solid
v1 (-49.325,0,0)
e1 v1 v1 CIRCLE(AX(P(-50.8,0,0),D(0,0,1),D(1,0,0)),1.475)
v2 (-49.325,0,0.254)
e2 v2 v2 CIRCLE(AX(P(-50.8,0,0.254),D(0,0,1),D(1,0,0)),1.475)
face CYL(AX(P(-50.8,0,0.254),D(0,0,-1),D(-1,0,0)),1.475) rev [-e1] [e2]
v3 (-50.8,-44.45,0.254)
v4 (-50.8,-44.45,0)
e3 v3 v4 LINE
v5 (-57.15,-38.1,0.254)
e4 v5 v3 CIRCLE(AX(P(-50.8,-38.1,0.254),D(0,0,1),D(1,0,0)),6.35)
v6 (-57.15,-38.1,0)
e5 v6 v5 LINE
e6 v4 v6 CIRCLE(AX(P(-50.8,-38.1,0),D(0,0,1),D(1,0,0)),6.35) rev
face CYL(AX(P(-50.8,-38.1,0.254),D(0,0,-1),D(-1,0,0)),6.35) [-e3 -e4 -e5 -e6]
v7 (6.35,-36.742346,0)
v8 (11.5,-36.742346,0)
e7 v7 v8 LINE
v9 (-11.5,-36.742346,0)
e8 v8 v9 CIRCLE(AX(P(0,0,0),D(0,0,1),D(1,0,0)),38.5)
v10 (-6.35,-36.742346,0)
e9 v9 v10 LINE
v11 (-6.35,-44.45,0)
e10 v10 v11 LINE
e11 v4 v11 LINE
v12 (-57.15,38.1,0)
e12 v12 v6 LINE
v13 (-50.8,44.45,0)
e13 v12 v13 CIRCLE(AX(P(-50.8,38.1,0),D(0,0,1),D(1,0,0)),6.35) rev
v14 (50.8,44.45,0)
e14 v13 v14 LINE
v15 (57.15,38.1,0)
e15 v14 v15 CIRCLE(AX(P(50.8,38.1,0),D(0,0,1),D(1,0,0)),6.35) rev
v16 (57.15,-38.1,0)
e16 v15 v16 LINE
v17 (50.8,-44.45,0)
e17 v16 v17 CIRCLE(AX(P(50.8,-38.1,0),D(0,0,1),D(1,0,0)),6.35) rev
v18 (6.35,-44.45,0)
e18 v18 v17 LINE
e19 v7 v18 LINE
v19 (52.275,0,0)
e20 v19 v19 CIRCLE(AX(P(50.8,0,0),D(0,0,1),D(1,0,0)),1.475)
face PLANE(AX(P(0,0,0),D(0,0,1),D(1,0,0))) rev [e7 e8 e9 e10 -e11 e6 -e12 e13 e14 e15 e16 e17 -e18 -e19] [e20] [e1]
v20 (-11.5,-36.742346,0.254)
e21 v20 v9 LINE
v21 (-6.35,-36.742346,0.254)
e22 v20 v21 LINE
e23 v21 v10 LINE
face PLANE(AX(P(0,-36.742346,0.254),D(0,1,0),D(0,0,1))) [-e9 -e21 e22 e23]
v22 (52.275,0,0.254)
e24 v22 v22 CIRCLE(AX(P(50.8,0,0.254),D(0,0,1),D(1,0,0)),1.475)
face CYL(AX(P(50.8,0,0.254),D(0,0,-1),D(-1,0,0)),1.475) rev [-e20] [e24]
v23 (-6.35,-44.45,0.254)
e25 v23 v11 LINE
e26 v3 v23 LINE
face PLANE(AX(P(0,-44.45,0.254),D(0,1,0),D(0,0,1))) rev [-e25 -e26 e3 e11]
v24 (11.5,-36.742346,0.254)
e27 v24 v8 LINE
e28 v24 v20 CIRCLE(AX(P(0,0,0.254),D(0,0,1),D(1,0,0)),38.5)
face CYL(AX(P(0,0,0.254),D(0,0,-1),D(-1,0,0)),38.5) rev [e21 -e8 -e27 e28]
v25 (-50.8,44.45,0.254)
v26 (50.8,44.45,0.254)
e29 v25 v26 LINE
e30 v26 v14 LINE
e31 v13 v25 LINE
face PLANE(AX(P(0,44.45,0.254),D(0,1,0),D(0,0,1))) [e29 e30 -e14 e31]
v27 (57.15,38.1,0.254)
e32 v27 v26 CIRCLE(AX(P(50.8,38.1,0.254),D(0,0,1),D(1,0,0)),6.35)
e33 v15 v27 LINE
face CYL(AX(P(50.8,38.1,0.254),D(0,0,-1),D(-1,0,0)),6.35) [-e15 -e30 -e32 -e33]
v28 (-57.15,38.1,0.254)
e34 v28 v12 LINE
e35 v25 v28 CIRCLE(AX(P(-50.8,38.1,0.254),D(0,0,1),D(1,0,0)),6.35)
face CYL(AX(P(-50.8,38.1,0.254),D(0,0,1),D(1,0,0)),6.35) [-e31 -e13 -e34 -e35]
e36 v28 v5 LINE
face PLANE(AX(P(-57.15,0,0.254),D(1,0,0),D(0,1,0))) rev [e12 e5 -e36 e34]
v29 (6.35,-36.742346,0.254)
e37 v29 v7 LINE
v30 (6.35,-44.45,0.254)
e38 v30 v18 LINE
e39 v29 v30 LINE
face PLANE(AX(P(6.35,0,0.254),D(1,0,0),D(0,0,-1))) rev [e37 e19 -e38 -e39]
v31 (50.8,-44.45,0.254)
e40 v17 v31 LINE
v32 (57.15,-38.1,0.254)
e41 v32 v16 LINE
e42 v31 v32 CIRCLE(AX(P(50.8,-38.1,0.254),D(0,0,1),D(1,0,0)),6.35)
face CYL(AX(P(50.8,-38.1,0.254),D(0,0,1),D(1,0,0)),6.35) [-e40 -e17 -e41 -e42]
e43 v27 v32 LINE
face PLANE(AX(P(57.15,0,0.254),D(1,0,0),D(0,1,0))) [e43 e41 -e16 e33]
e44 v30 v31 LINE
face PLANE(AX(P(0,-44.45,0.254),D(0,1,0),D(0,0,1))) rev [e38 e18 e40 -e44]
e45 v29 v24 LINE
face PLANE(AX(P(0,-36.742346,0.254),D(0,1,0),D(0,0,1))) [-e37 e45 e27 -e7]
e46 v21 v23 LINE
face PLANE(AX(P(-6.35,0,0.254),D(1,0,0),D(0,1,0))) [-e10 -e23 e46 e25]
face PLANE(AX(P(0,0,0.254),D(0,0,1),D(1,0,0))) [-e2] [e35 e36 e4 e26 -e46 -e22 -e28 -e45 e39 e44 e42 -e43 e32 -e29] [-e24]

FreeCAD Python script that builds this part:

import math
import FreeCAD as App
import Part
import Sketcher
Q = App.Units.Quantity


def edges_at(feature, points):
    """Names of the edges that pass closest to the given points."""
    edges = feature.Shape.Edges
    near = lambda p: min(range(len(edges)), key=lambda i: edges[i].distToShape(Part.Vertex(*p))[0])
    return sorted({f"Edge{near(p) + 1}" for p in points})

doc = App.newDocument("Part")
body = doc.addObject("PartDesign::Body", "Body")

# Sketch on XY plane
sketch1 = body.newObject("Sketcher::SketchObject", "Sketch")
sketch1.AttachmentSupport = (doc.getObject("XY_Plane"), [""])
sketch1.MapMode = "FlatFace"
sketch1.addGeometry(Part.LineSegment(App.Vector(-6.3, -44.5, 0), App.Vector(-6.3, -36.7, 0)), False)
sketch1.addGeometry(Part.LineSegment(App.Vector(-6.3, -36.7, 0), App.Vector(-11.5, -36.7, 0)), False)
sketch1.addGeometry(Part.ArcOfCircle(Part.Circle(App.Vector(0, 0, 0), App.Vector(0, 0, 1), 38.5), math.radians(0), math.radians(253)), False)
sketch1.addGeometry(Part.ArcOfCircle(Part.Circle(App.Vector(0, 0, 0), App.Vector(0, 0, 1), 38.5), math.radians(-73), math.radians(0)), False)
sketch1.addGeometry(Part.LineSegment(App.Vector(11.5, -36.7, 0), App.Vector(6.3, -36.7, 0)), False)
sketch1.addGeometry(Part.LineSegment(App.Vector(6.3, -36.7, 0), App.Vector(6.3, -44.5, 0)), False)
sketch1.addGeometry(Part.LineSegment(App.Vector(6.3, -44.5, 0), App.Vector(57.1, -44.5, 0)), False)
sketch1.addGeometry(Part.LineSegment(App.Vector(57.1, -44.5, 0), App.Vector(57.1, 44.5, 0)), False)
sketch1.addGeometry(Part.LineSegment(App.Vector(57.1, 44.5, 0), App.Vector(-57.1, 44.5, 0)), False)
sketch1.addGeometry(Part.LineSegment(App.Vector(-57.1, 44.5, 0), App.Vector(-57.1, -44.5, 0)), False)
sketch1.addGeometry(Part.LineSegment(App.Vector(-57.1, -44.5, 0), App.Vector(-6.3, -44.5, 0)), False)
sketch1.addGeometry(Part.Circle(App.Vector(-50.8, 0, 0), App.Vector(0, 0, 1), 1.5), False)
sketch1.addGeometry(Part.Circle(App.Vector(50.8, 0, 0), App.Vector(0, 0, 1), 1.5), False)
sketch1.addConstraint(Sketcher.Constraint("Coincident", 0, 2, 1, 1))
sketch1.addConstraint(Sketcher.Constraint("Coincident", 1, 2, 2, 2))
sketch1.addConstraint(Sketcher.Constraint("Tangent", 2, 1, 3, 2))
sketch1.addConstraint(Sketcher.Constraint("Coincident", 3, 1, 4, 1))
sketch1.addConstraint(Sketcher.Constraint("Coincident", 4, 2, 5, 1))
sketch1.addConstraint(Sketcher.Constraint("Coincident", 5, 2, 6, 1))
sketch1.addConstraint(Sketcher.Constraint("Coincident", 6, 2, 7, 1))
sketch1.addConstraint(Sketcher.Constraint("Coincident", 7, 2, 8, 1))
sketch1.addConstraint(Sketcher.Constraint("Coincident", 8, 2, 9, 1))
sketch1.addConstraint(Sketcher.Constraint("Coincident", 9, 2, 10, 1))
sketch1.addConstraint(Sketcher.Constraint("Coincident", 10, 2, 0, 1))
sketch1.addConstraint(Sketcher.Constraint("Vertical", 0))
sketch1.addConstraint(Sketcher.Constraint("Horizontal", 1))
sketch1.addConstraint(Sketcher.Constraint("Horizontal", 4))
sketch1.addConstraint(Sketcher.Constraint("Vertical", 5))
sketch1.addConstraint(Sketcher.Constraint("Horizontal", 6))
sketch1.addConstraint(Sketcher.Constraint("Vertical", 7))
sketch1.addConstraint(Sketcher.Constraint("Horizontal", 8))
sketch1.addConstraint(Sketcher.Constraint("Vertical", 9))
sketch1.addConstraint(Sketcher.Constraint("Horizontal", 10))
sketch1.addConstraint(Sketcher.Constraint("Coincident", 2, 3, -1, 1))
sketch1.addConstraint(Sketcher.Constraint("Equal", 2, 3))
sketch1.addConstraint(Sketcher.Constraint("Equal", 11, 12))
sketch1.addConstraint(Sketcher.Constraint("Symmetric", 11, 3, 12, 3, -1, 1))
sketch1.addConstraint(Sketcher.Constraint("Symmetric", 6, 2, 8, 2, -1, 1))
sketch1.addConstraint(Sketcher.Constraint("Symmetric", 0, 2, 4, 2, -2))
sketch1.addConstraint(Sketcher.Constraint("PointOnObject", 11, 3, -1))
sketch1.addConstraint(Sketcher.Constraint("PointOnObject", 2, 1, -1))
sketch1.addConstraint(Sketcher.Constraint("Horizontal", 6, 2, 9, 2))
sketch1.addConstraint(Sketcher.Constraint("DistanceX", 6, 1, 6, 2, Q("2 in")))
sketch1.addConstraint(Sketcher.Constraint("DistanceX", 8, 2, 8, 1, Q("4.5 in")))
sketch1.addConstraint(Sketcher.Constraint("DistanceY", 7, 1, 7, 2, Q("3.5 in")))
sketch1.addConstraint(Sketcher.Constraint("DistanceX", 11, 3, -1, 1, Q("2 in")))
sketch1.addConstraint(Sketcher.Constraint("Diameter", 11, 2.95))
sketch1.addConstraint(Sketcher.Constraint("Radius", 2, 38.5))
sketch1.addConstraint(Sketcher.Constraint("DistanceX", 1, 2, 1, 1, 5.15))
pad1 = body.newObject("PartDesign::Pad", "Pad")
pad1.Profile = sketch1
pad1.Length = Q("0.01 in")
doc.recompute()

fillet = body.newObject("PartDesign::Fillet", "Fillet")
fillet.Base = (pad1, edges_at(pad1, [
    (-57.15, -44.45, 0.127),
    (-57.15, 44.45, 0.127),
    (57.15, 44.45, 0.127),
    (57.15, -44.45, 0.127),
]))
fillet.Radius = Q("0.25 in")

doc.recompute()
